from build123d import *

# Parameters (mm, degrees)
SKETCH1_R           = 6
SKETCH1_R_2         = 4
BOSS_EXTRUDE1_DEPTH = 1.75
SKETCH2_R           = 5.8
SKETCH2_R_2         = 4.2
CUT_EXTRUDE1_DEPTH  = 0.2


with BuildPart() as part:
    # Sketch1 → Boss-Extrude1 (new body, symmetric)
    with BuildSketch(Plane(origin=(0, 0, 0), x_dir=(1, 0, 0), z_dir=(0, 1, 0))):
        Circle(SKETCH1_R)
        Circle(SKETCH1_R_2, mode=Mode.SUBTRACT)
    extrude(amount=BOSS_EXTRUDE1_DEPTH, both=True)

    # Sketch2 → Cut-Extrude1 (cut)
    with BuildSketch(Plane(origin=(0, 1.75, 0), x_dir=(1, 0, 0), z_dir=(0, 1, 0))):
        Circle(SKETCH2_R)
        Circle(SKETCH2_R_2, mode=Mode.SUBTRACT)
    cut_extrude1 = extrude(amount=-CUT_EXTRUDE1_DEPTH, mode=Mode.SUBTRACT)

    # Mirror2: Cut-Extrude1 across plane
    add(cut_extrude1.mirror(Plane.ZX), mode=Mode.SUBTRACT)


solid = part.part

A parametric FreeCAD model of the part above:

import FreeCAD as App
import Part
import Sketcher

V = App.Vector

doc = App.newDocument("Part")
body = doc.addObject("PartDesign::Body", "Body")

# Sketch on XZ plane
sketch1 = body.newObject("Sketcher::SketchObject", "Sketch")
sketch1.AttachmentSupport = (doc.getObject("XZ_Plane"), [""])
sketch1.MapMode = "FlatFace"
sketch1.addGeometry([
    Part.Circle(V(0, 0, 0), V(0, 0, 1), 6),
    Part.Circle(V(0, 0, 0), V(0, 0, 1), 4),
], False)
sketch1.addConstraint([
    Sketcher.Constraint("Coincident", 0, 3, -1, 1),
    Sketcher.Constraint("Coincident", 1, 3, -1, 1),
    Sketcher.Constraint("Diameter", 0, 12.0),
    Sketcher.Constraint("Diameter", 1, 8.0),
])
pad1 = body.newObject("PartDesign::Pad", "Pad")
pad1.Profile = sketch1
pad1.Length = 3.5
pad1.Midplane = True

# Sketch on XZ plane
sketch2 = body.newObject("Sketcher::SketchObject", "Sketch001")
sketch2.AttachmentSupport = (doc.getObject("XZ_Plane"), [""])
sketch2.MapMode = "FlatFace"
sketch2.AttachmentOffset = App.Placement(V(0, 0, -1.75), App.Rotation())
sketch2.addGeometry([
    Part.Circle(V(0, 0, 0), V(0, 0, 1), 5.8),
    Part.Circle(V(0, 0, 0), V(0, 0, 1), 4.2),
], False)
sketch2.addConstraint([
    Sketcher.Constraint("Coincident", 0, 3, -1, 1),
    Sketcher.Constraint("Coincident", 1, 3, -1, 1),
    Sketcher.Constraint("Diameter", 0, 11.6),
    Sketcher.Constraint("Diameter", 1, 8.4),
])
pocket1 = body.newObject("PartDesign::Pocket", "Pocket")
pocket1.Profile = sketch2
pocket1.Length = 0.2
pocket1.Reversed = True
doc.recompute()

mirrored = body.newObject("PartDesign::Mirrored", "Mirrored")
mirrored.Originals = [pocket1]
mirrored.MirrorPlane = (doc.getObject("XZ_Plane"), [""])
body.Tip = mirrored

doc.recompute()
